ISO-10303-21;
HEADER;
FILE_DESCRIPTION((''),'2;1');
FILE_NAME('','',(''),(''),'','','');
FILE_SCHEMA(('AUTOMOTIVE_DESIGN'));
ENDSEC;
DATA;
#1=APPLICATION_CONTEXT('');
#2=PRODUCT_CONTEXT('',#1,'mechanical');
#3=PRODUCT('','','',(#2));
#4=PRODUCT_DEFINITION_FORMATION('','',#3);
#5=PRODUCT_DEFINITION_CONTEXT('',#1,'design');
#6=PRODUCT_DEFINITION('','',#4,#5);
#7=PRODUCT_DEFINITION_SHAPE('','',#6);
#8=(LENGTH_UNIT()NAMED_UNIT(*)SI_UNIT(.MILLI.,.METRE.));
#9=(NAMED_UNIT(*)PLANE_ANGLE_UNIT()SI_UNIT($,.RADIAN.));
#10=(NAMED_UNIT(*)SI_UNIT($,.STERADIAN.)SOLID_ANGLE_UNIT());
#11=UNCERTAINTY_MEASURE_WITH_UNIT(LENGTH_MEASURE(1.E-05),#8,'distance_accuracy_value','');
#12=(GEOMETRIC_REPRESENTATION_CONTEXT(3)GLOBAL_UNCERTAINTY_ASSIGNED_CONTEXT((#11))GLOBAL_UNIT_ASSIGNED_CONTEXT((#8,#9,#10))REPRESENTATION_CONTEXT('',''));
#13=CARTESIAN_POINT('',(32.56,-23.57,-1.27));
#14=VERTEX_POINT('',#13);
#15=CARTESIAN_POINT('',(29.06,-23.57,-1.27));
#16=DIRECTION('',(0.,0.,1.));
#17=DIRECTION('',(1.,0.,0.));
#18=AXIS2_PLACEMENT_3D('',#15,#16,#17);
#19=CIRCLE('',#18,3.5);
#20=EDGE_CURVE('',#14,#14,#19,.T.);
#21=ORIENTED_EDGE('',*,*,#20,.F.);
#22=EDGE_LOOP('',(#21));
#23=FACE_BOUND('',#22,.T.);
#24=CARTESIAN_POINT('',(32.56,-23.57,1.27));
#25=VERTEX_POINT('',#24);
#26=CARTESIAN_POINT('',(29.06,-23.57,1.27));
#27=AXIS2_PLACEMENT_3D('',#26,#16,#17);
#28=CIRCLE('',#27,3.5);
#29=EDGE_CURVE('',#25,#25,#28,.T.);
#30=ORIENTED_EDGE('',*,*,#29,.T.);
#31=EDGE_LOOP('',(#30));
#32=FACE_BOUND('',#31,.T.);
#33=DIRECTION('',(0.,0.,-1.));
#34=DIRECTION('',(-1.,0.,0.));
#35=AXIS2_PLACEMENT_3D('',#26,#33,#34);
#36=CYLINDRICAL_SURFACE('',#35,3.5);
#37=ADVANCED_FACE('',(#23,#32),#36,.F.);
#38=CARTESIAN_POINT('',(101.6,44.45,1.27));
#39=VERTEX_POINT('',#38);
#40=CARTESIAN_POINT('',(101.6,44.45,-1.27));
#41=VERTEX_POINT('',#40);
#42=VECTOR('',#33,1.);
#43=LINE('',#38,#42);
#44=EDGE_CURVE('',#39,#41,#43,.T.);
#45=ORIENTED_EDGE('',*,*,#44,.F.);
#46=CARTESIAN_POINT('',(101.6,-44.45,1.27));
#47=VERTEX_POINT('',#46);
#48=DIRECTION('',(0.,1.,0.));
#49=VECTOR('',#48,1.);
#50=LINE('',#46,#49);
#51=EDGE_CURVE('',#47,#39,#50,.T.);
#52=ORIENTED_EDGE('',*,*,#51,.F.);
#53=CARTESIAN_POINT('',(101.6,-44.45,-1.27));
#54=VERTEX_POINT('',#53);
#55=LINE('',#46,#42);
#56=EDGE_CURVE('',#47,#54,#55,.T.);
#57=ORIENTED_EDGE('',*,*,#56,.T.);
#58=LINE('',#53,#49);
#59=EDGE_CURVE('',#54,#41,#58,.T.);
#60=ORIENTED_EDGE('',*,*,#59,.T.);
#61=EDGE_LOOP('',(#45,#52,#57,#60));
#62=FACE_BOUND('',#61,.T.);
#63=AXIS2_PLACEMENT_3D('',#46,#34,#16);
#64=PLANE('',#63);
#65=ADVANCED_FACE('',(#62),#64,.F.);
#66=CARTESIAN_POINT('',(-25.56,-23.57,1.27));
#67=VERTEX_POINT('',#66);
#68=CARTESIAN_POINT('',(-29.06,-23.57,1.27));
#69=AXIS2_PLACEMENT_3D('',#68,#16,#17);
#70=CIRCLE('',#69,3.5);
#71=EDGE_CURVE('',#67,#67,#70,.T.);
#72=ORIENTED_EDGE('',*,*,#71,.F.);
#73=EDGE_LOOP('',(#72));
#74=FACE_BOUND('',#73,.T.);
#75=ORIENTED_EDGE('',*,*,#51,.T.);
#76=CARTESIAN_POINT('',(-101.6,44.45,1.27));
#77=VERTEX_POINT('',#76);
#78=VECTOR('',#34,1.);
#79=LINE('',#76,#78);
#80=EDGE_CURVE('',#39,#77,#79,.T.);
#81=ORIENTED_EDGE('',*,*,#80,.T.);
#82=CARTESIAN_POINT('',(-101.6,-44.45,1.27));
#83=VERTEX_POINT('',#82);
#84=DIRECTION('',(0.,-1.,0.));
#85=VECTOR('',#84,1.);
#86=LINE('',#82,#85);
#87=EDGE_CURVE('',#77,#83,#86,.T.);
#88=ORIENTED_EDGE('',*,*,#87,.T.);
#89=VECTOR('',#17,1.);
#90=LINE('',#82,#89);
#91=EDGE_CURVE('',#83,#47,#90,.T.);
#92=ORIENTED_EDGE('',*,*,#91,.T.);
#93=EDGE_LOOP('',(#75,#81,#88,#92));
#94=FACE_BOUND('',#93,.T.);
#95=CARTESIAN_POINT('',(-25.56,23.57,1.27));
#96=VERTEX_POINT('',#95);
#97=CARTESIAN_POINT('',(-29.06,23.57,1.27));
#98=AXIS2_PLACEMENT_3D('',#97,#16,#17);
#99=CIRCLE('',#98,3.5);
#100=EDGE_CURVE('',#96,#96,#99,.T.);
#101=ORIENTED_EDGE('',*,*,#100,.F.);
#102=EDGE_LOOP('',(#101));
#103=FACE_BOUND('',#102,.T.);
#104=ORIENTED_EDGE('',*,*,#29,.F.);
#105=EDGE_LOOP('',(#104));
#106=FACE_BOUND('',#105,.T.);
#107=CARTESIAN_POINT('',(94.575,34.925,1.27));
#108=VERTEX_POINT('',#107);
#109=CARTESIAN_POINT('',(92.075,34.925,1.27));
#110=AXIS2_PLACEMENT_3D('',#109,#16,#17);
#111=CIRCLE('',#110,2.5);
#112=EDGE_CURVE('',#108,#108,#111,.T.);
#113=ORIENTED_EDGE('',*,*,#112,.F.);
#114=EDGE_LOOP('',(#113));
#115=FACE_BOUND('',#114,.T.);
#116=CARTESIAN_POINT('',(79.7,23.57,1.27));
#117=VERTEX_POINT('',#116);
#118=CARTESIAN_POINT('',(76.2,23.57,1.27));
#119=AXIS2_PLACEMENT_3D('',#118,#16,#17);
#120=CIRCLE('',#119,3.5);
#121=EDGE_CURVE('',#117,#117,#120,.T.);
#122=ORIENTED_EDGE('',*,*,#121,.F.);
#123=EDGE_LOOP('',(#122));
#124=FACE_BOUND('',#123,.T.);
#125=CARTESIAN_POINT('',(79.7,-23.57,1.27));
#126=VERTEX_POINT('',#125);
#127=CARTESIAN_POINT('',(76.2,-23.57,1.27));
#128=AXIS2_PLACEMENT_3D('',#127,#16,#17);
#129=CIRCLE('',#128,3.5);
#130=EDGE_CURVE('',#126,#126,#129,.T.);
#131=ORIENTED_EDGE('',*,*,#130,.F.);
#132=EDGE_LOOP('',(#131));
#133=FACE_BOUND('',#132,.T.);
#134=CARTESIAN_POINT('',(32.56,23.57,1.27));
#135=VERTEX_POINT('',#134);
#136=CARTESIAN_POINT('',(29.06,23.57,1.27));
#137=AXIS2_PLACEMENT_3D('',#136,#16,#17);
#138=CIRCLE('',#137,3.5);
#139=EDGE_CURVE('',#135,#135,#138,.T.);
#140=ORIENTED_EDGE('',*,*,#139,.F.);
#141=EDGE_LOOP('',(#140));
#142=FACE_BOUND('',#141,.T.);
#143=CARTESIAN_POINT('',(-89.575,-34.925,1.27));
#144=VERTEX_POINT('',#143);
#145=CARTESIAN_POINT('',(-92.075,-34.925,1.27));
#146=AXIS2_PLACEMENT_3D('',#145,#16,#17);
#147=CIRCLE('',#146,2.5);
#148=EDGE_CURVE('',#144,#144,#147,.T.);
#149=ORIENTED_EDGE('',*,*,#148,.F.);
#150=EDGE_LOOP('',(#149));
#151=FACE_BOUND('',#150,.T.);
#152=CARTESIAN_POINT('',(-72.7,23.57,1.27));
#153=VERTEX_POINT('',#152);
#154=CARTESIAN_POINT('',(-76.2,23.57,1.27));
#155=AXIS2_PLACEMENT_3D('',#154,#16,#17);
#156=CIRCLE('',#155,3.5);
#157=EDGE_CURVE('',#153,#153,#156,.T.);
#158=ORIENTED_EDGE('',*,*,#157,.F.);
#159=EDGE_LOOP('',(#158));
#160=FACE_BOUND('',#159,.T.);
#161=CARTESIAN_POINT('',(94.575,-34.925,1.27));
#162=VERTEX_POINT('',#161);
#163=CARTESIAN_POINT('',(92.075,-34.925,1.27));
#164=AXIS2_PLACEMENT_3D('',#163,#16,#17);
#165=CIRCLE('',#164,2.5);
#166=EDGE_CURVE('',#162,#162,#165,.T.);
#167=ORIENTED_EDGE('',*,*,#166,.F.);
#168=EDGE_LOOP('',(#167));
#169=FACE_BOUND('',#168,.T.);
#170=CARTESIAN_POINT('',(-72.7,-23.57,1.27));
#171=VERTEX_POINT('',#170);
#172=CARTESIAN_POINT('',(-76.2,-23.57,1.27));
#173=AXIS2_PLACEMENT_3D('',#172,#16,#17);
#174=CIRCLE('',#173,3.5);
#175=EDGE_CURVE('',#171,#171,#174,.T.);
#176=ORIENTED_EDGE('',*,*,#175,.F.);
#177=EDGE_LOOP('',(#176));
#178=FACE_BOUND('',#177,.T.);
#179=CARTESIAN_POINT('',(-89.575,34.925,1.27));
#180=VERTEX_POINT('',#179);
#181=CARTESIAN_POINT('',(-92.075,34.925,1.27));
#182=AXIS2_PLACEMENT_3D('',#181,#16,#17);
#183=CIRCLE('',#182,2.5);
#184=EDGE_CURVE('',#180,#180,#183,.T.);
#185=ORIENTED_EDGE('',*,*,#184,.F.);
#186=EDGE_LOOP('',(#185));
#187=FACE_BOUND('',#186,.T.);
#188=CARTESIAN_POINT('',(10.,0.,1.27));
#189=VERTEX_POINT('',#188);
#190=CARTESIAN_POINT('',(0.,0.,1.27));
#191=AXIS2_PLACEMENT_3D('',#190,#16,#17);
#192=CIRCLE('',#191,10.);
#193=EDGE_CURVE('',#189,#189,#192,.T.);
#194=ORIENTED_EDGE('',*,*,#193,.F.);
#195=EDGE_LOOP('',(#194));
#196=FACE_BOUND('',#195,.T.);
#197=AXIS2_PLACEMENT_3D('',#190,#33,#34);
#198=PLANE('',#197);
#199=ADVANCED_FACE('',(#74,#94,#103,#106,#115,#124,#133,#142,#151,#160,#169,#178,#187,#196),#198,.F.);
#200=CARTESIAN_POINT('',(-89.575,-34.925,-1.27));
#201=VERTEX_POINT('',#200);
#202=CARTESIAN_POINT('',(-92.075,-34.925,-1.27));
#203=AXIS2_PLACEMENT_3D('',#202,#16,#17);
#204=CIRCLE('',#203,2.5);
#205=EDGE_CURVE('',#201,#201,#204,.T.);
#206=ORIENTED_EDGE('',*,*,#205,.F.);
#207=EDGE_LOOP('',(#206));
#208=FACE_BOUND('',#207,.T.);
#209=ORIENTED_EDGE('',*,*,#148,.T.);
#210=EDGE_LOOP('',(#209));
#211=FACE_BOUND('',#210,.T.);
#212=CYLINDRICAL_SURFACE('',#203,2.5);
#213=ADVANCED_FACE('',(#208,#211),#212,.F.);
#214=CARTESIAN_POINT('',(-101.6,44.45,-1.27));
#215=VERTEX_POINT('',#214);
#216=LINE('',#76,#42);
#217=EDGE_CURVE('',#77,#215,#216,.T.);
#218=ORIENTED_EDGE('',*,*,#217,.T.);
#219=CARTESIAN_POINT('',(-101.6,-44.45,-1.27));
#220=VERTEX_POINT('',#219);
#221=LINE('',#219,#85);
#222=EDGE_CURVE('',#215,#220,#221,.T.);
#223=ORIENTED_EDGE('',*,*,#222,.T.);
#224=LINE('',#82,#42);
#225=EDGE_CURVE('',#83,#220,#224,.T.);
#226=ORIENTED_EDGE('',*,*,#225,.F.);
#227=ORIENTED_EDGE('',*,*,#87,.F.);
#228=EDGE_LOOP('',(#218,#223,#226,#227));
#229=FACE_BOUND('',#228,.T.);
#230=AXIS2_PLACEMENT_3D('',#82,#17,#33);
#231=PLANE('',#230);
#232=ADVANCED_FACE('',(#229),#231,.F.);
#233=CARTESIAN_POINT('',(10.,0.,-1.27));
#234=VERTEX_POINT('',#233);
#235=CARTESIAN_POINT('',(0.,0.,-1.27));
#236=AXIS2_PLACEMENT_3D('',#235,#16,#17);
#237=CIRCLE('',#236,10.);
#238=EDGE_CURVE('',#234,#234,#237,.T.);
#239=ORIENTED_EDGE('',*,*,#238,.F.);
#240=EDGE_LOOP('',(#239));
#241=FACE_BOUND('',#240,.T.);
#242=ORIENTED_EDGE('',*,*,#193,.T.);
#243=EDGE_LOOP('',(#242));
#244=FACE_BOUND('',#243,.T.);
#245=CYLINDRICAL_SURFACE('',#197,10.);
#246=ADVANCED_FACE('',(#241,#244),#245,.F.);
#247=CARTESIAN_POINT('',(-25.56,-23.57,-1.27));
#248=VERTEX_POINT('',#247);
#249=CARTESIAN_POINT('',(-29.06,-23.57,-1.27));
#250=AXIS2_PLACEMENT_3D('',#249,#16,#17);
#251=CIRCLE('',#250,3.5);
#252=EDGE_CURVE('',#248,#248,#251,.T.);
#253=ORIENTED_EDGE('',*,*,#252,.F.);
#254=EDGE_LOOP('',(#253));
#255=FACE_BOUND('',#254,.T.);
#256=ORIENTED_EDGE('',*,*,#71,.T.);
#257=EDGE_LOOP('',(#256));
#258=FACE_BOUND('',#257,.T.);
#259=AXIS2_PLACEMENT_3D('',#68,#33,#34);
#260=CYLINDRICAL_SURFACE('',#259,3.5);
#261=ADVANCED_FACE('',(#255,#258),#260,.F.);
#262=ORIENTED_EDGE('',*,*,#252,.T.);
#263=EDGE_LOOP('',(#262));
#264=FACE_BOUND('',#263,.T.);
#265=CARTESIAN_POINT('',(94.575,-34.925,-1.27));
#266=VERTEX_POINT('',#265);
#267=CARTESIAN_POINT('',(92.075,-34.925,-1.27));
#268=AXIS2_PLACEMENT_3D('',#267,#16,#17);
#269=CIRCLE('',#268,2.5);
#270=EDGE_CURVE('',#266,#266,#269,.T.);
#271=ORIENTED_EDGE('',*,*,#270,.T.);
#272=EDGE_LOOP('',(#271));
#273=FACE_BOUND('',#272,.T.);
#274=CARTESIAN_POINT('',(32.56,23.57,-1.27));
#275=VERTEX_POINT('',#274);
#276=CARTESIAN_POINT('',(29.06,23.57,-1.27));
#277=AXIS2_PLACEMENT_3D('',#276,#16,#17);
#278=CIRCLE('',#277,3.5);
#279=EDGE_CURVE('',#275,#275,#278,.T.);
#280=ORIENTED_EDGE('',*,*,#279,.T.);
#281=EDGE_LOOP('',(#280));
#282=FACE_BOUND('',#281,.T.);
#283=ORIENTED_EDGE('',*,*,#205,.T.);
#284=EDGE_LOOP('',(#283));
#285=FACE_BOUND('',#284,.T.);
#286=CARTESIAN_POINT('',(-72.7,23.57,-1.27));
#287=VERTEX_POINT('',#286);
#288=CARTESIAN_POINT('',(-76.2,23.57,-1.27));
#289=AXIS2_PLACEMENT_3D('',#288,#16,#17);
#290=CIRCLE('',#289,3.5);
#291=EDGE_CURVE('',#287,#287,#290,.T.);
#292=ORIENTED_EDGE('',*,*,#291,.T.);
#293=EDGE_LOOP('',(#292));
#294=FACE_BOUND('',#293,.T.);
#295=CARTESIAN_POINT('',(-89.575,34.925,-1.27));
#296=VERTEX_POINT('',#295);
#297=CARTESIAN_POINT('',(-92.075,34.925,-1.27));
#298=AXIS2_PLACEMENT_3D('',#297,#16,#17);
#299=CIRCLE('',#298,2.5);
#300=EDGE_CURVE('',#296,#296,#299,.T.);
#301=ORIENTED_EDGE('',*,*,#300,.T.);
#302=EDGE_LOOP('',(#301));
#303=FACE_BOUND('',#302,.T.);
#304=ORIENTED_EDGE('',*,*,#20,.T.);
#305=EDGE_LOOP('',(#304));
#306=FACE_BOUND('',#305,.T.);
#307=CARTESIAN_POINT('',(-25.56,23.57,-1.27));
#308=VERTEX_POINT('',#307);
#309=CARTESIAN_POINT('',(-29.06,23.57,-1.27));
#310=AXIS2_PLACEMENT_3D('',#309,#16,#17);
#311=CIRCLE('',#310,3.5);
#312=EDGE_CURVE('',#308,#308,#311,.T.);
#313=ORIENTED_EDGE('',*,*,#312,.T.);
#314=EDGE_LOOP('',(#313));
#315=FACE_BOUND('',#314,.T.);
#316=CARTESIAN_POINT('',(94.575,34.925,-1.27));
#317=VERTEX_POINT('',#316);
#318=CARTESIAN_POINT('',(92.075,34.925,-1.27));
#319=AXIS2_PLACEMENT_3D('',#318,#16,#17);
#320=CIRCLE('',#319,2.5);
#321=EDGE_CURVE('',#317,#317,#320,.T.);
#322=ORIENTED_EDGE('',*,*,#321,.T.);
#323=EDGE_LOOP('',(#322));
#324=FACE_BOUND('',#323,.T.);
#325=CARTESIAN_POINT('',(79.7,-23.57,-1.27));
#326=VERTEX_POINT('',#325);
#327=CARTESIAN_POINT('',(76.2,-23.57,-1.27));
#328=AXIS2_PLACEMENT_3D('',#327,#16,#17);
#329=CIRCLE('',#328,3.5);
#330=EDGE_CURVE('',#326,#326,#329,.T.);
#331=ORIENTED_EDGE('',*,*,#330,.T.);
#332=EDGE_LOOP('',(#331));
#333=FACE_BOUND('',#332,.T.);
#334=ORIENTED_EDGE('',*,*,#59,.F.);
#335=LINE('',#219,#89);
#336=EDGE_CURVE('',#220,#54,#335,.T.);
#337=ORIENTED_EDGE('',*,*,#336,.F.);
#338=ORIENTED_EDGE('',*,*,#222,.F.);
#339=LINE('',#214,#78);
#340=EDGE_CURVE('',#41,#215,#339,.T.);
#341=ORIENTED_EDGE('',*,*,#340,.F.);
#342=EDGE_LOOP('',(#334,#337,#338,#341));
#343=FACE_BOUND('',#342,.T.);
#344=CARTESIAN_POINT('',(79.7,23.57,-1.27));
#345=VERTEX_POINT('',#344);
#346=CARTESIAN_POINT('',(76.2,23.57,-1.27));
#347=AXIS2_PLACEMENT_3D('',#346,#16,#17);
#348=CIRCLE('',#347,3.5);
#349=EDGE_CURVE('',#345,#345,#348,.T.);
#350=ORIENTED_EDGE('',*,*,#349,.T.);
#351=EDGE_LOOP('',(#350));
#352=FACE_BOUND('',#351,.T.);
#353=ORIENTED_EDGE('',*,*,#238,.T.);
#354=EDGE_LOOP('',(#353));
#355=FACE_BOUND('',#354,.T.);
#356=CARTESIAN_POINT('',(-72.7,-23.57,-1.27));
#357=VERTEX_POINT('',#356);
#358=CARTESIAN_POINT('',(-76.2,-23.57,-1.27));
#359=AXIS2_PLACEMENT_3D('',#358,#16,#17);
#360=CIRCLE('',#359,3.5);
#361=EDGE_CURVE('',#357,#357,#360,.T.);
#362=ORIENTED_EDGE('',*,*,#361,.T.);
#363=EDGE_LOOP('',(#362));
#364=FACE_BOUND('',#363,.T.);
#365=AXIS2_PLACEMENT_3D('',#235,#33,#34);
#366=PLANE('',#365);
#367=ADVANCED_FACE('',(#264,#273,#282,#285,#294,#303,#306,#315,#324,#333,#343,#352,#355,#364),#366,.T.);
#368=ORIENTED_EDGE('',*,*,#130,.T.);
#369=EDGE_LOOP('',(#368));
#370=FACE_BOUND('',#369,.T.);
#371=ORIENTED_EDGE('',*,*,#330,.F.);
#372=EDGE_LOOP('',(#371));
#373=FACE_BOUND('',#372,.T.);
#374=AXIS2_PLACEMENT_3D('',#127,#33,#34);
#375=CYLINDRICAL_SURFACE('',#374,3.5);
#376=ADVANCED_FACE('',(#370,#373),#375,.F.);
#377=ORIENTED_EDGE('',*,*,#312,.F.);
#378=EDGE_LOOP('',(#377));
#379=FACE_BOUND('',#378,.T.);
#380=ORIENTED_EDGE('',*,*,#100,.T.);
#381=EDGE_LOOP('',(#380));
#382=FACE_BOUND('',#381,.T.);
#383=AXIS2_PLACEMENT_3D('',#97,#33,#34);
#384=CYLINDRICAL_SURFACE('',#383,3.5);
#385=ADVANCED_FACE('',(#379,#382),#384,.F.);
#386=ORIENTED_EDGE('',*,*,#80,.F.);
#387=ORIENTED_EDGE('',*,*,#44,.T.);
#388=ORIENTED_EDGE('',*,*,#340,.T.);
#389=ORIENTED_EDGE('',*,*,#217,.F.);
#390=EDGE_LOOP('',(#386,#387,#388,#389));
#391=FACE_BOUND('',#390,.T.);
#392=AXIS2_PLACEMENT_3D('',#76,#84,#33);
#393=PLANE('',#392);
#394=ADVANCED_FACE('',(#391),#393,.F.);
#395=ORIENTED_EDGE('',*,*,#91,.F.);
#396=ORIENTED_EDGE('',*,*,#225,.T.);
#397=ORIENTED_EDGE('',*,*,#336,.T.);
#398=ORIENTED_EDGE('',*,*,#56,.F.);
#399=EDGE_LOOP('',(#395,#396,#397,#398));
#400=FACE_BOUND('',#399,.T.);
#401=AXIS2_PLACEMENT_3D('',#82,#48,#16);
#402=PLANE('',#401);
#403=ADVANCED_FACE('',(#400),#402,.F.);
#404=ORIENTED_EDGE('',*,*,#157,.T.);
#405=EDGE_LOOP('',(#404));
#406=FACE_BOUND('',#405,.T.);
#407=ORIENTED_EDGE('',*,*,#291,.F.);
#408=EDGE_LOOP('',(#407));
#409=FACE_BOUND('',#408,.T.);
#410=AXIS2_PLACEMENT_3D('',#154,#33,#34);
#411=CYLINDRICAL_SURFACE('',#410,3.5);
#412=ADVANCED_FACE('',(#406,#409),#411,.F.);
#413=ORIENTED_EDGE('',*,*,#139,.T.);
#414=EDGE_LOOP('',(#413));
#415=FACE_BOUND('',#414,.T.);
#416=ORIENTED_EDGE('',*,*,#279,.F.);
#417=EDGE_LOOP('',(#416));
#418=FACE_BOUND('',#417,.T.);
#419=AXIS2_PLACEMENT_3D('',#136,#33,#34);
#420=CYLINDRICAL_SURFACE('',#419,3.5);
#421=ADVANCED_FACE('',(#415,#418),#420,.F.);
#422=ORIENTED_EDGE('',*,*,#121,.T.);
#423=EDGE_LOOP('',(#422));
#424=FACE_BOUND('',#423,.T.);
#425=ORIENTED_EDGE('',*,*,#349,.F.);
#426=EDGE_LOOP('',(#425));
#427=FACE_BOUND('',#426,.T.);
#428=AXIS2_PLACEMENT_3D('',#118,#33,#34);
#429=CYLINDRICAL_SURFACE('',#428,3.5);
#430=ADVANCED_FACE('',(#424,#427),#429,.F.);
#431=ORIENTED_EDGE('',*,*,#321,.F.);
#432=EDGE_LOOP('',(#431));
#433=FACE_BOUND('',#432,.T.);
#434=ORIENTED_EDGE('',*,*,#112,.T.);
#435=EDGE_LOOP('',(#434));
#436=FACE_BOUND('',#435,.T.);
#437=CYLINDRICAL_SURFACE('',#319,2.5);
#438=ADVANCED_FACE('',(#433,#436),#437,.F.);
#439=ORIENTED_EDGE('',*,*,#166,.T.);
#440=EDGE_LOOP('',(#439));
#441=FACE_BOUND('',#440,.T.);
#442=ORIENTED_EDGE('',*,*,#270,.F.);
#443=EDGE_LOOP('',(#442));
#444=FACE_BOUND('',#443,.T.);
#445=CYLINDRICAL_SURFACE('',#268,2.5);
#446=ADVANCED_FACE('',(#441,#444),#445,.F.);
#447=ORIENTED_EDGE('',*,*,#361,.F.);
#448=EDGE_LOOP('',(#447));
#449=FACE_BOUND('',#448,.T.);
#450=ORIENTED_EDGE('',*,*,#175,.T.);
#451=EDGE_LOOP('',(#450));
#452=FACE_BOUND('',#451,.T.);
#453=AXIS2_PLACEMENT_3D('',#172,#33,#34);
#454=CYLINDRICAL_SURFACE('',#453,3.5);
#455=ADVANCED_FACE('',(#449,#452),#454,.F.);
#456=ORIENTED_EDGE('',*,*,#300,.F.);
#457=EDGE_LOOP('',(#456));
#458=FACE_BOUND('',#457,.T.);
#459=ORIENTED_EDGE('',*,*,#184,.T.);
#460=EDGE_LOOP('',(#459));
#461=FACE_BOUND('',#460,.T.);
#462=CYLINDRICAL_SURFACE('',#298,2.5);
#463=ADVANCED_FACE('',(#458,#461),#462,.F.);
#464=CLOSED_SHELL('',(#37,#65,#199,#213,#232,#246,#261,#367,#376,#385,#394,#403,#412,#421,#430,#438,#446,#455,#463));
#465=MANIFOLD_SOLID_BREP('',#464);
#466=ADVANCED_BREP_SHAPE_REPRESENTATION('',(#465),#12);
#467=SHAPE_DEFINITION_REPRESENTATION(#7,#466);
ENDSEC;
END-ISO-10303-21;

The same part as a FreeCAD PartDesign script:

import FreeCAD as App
import Part
import Sketcher
Q = App.Units.Quantity


def add_polygon(sketch, points):
    """Adds a closed chain of lines whose ends are joined by coincident constraints."""
    first, n = sketch.GeometryCount, len(points)
    for a, b in zip(points, points[1:] + points[:1]):
        sketch.addGeometry(Part.LineSegment(App.Vector(*a, 0), App.Vector(*b, 0)), False)
    for i in range(n):
        sketch.addConstraint(Sketcher.Constraint("Coincident", first + i, 2, first + (i + 1) % n, 1))

doc = App.newDocument("Part")
body = doc.addObject("PartDesign::Body", "Body")

# Sketch on XY plane
sketch1 = body.newObject("Sketcher::SketchObject", "Sketch")
sketch1.AttachmentSupport = (doc.getObject("XY_Plane"), [""])
sketch1.MapMode = "FlatFace"
add_polygon(sketch1, [(-101.6, 44.5), (-101.6, -44.5), (101.6, -44.5), (101.6, 44.5)])  # lines 0-3
sketch1.addGeometry(Part.Circle(App.Vector(-76.2, -23.6, 0), App.Vector(0, 0, 1), 3.5), False)  # 4
sketch1.addGeometry(Part.Circle(App.Vector(-29.1, -23.6, 0), App.Vector(0, 0, 1), 3.5), False)  # 5
sketch1.addGeometry(Part.Circle(App.Vector(29.1, -23.6, 0), App.Vector(0, 0, 1), 3.5), False)  # 6
sketch1.addGeometry(Part.Circle(App.Vector(76.2, -23.6, 0), App.Vector(0, 0, 1), 3.5), False)  # 7
sketch1.addGeometry(Part.Circle(App.Vector(0, 0, 0), App.Vector(0, 0, 1), 10), False)  # 8
sketch1.addGeometry(Part.Circle(App.Vector(-76.2, 23.6, 0), App.Vector(0, 0, 1), 3.5), False)  # 9
sketch1.addGeometry(Part.Circle(App.Vector(-29.1, 23.6, 0), App.Vector(0, 0, 1), 3.5), False)  # 10
sketch1.addGeometry(Part.Circle(App.Vector(29.1, 23.6, 0), App.Vector(0, 0, 1), 3.5), False)  # 11
sketch1.addGeometry(Part.Circle(App.Vector(76.2, 23.6, 0), App.Vector(0, 0, 1), 3.5), False)  # 12
sketch1.addConstraint([
    Sketcher.Constraint("Vertical", 0),
    Sketcher.Constraint("Horizontal", 1),
    Sketcher.Constraint("Vertical", 2),
    Sketcher.Constraint("Horizontal", 3),
    Sketcher.Constraint("Coincident", 8, 3, -1, 1),
    Sketcher.Constraint("Equal", 4, 5),
    Sketcher.Constraint("Equal", 5, 6),
    Sketcher.Constraint("Equal", 6, 7),
    Sketcher.Constraint("Equal", 7, 9),
    Sketcher.Constraint("Equal", 9, 10),
    Sketcher.Constraint("Equal", 10, 11),
    Sketcher.Constraint("Equal", 11, 12),
    Sketcher.Constraint("Symmetric", 7, 3, 9, 3, -1, 1),
    Sketcher.Constraint("Symmetric", 6, 3, 10, 3, -1, 1),
    Sketcher.Constraint("Symmetric", 5, 3, 11, 3, -1, 1),
    Sketcher.Constraint("Symmetric", 4, 3, 12, 3, -1, 1),
    Sketcher.Constraint("Symmetric", 0, 2, 2, 2, -1, 1),
    Sketcher.Constraint("Symmetric", 5, 3, 6, 3, -2),
    Sketcher.Constraint("Symmetric", 4, 3, 7, 3, -2),
    Sketcher.Constraint("Horizontal", 4, 3, 5, 3),
    Sketcher.Constraint("Diameter", 4, Q("7 mm")),
    Sketcher.Constraint("Diameter", 8, Q("20 mm")),
    Sketcher.Constraint("DistanceX", 1, 1, 1, 2, Q("203.2 mm")),
    Sketcher.Constraint("DistanceY", 0, 2, 0, 1, Q("88.9 mm")),
    Sketcher.Constraint("DistanceX", 4, 3, -1, 1, Q("76.2 mm")),
    Sketcher.Constraint("DistanceY", 4, 3, -1, 1, Q("23.57 mm")),
    Sketcher.Constraint("DistanceX", 5, 3, -1, 1, Q("29.06 mm")),
])
pad1 = body.newObject("PartDesign::Pad", "Pad")
pad1.Profile = sketch1
pad1.Length = 2.54
pad1.Midplane = True

# Sketch on XY plane
sketch2 = body.newObject("Sketcher::SketchObject", "Sketch001")
sketch2.AttachmentSupport = (doc.getObject("XY_Plane"), [""])
sketch2.MapMode = "FlatFace"
sketch2.AttachmentOffset = App.Placement(App.Vector(0, 0, 1.27), App.Rotation())
sketch2.addGeometry([
    Part.Circle(App.Vector(-92.1, 34.9, 0), App.Vector(0, 0, 1), 2.5),
    Part.Circle(App.Vector(-92.1, -34.9, 0), App.Vector(0, 0, 1), 2.5),
    Part.Circle(App.Vector(92.1, -34.9, 0), App.Vector(0, 0, 1), 2.5),
    Part.Circle(App.Vector(92.1, 34.9, 0), App.Vector(0, 0, 1), 2.5),
], False)
sketch2.addConstraint([
    Sketcher.Constraint("Equal", 0, 1),
    Sketcher.Constraint("Equal", 1, 2),
    Sketcher.Constraint("Equal", 2, 3),
    Sketcher.Constraint("Symmetric", 0, 3, 2, 3, -1, 1),
    Sketcher.Constraint("Symmetric", 1, 3, 3, 3, -1, 1),
    Sketcher.Constraint("Symmetric", 1, 3, 2, 3, -2),
    Sketcher.Constraint("Diameter", 0, Q("5 mm")),
    Sketcher.Constraint("DistanceY", 1, 3, 0, 3, Q("69.85 mm")),
    Sketcher.Constraint("DistanceX", 1, 3, 2, 3, Q("184.15 mm")),
])
pocket1 = body.newObject("PartDesign::Pocket", "Pocket")
pocket1.Profile = sketch2
pocket1.Type = "ThroughAll"

doc.recompute()
